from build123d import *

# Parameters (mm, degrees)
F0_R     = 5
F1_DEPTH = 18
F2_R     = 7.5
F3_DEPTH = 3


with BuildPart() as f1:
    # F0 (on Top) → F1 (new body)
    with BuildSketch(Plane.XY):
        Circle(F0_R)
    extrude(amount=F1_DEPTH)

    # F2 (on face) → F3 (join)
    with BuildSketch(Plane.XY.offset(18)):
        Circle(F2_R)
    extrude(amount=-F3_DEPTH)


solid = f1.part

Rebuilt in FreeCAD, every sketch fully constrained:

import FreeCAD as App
import Part
import Sketcher

V = App.Vector
Q = App.Units.Quantity

doc = App.newDocument("Part")
body = doc.addObject("PartDesign::Body", "Body")

# Sketch on XY plane
sketch1 = body.newObject("Sketcher::SketchObject", "Sketch")
sketch1.AttachmentSupport = (doc.getObject("XY_Plane"), [""])
sketch1.MapMode = "FlatFace"
sketch1.addGeometry(Part.Circle(V(0, 0, 0), V(0, 0, 1), 5), False)
sketch1.addConstraint([
    Sketcher.Constraint("Coincident", 0, 3, -1, 1),
    Sketcher.Constraint("Diameter", 0, Q("10 mm")),
])
pad1 = body.newObject("PartDesign::Pad", "Pad")
pad1.Profile = sketch1
pad1.Length = 18

# Sketch on XY plane
sketch2 = body.newObject("Sketcher::SketchObject", "Sketch001")
sketch2.AttachmentSupport = (doc.getObject("XY_Plane"), [""])
sketch2.MapMode = "FlatFace"
sketch2.AttachmentOffset = App.Placement(V(0, 0, 18), App.Rotation())
sketch2.addGeometry(Part.Circle(V(0, 0, 0), V(0, 0, 1), 8), False)
sketch2.addConstraint([
    Sketcher.Constraint("Coincident", 0, 3, -1, 1),
    Sketcher.Constraint("Diameter", 0, Q("15 mm")),
])
pad2 = body.newObject("PartDesign::Pad", "Pad001")
pad2.Profile = sketch2
pad2.Length = 3
pad2.Reversed = True

doc.recompute()
